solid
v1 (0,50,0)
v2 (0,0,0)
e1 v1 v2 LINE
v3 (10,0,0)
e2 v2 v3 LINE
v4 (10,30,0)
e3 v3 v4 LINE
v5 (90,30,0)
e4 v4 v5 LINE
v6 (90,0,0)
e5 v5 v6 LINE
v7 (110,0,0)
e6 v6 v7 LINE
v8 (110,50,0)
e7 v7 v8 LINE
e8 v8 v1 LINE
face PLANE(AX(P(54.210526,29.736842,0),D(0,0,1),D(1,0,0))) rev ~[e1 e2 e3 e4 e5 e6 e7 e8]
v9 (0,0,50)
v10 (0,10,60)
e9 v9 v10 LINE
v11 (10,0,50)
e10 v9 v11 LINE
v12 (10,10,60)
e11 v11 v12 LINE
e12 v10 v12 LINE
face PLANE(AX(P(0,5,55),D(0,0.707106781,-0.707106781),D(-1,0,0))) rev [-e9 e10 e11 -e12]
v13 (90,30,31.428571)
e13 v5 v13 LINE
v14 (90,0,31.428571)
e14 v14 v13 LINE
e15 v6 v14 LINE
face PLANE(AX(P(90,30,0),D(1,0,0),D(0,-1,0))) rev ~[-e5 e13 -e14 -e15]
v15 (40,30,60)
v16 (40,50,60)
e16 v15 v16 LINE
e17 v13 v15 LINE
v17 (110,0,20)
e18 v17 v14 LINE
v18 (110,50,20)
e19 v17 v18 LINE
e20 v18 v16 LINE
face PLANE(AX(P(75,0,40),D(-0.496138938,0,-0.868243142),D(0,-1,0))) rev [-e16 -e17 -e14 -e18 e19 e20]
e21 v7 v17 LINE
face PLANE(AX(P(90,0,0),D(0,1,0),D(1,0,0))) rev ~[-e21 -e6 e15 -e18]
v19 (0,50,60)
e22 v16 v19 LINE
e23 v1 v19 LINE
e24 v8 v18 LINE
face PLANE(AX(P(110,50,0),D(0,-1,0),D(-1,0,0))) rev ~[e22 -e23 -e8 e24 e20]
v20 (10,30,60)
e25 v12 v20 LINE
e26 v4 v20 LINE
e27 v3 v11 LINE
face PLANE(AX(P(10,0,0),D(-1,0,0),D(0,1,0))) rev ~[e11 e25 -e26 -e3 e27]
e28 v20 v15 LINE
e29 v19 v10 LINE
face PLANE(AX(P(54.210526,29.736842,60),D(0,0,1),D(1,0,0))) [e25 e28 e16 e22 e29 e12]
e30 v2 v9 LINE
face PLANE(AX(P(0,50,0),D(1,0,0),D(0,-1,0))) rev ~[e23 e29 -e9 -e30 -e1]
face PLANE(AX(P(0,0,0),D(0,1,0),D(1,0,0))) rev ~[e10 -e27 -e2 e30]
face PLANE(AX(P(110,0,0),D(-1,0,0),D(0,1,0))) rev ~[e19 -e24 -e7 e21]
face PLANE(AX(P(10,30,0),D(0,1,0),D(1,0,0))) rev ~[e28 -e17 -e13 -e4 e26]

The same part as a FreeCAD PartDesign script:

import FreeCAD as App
import Part
import Sketcher

V = App.Vector


def edges_at(feature, points):
    """Names of the edges that pass closest to the given points."""
    edges = feature.Shape.Edges
    near = lambda p: min(range(len(edges)), key=lambda i: edges[i].distToShape(Part.Vertex(*p))[0])
    return sorted({f"Edge{near(p) + 1}" for p in points})


def add_polygon(sketch, points):
    """Adds a closed chain of lines whose ends are joined by coincident constraints."""
    first, n = sketch.GeometryCount, len(points)
    for a, b in zip(points, points[1:] + points[:1]):
        sketch.addGeometry(Part.LineSegment(App.Vector(*a, 0), App.Vector(*b, 0)), False)
    for i in range(n):
        sketch.addConstraint(Sketcher.Constraint("Coincident", first + i, 2, first + (i + 1) % n, 1))

doc = App.newDocument("Part")
params = doc.addObject("Spreadsheet::Sheet", "Params")
for row, (alias, value) in enumerate([
    ("sketch1_width", "10 mm"),
    ("sketch1_width2", "80 mm"),
    ("sketch1_width3", "20 mm"),
    ("sketch1_height", "50 mm"),
    ("sketch1_height2", "30 mm"),
    ("pad1_length", "60 mm"),
    ("chamfer_size", "10 mm"),
    ("chamfer2_size", "40 mm"),
    ("chamfer2_size2", "70 mm"),
], start=1):
    params.set(f"A{row}", alias)
    params.set(f"B{row}", "=" + value)
    params.setAlias(f"B{row}", alias)

body = doc.addObject("PartDesign::Body", "Body")

# Sketch on XY plane
sketch1 = body.newObject("Sketcher::SketchObject", "Sketch")
sketch1.AttachmentSupport = (doc.getObject("XY_Plane"), [""])
sketch1.MapMode = "FlatFace"
add_polygon(sketch1, [(0, 50), (0, 0), (10, 0), (10, 30), (90, 30), (90, 0), (110, 0), (110, 50)])  # lines 0-7
sketch1.addConstraint(Sketcher.Constraint("Vertical", 0))
sketch1.addConstraint(Sketcher.Constraint("Horizontal", 1))
sketch1.addConstraint(Sketcher.Constraint("Vertical", 2))
sketch1.addConstraint(Sketcher.Constraint("Horizontal", 3))
sketch1.addConstraint(Sketcher.Constraint("Vertical", 4))
sketch1.addConstraint(Sketcher.Constraint("Horizontal", 5))
sketch1.addConstraint(Sketcher.Constraint("Vertical", 6))
sketch1.addConstraint(Sketcher.Constraint("Horizontal", 7))
sketch1.addConstraint(Sketcher.Constraint("Coincident", 0, 2, -1, 1))
sketch1.addConstraint(Sketcher.Constraint("PointOnObject", 4, 2, -1))
sketch1.addConstraint(Sketcher.Constraint("DistanceX", 1, 1, 1, 2, 10.0))
sketch1.addConstraint(Sketcher.Constraint("DistanceX", 3, 1, 3, 2, 80.0))
sketch1.addConstraint(Sketcher.Constraint("DistanceX", 5, 1, 5, 2, 20.0))
sketch1.addConstraint(Sketcher.Constraint("DistanceY", 0, 2, 0, 1, 50.0))
sketch1.addConstraint(Sketcher.Constraint("DistanceY", 2, 1, 2, 2, 30.0))
sketch1.setExpression("Constraints[18]", "Params.sketch1_width")
sketch1.setExpression("Constraints[19]", "Params.sketch1_width2")
sketch1.setExpression("Constraints[20]", "Params.sketch1_width3")
sketch1.setExpression("Constraints[21]", "Params.sketch1_height")
sketch1.setExpression("Constraints[22]", "Params.sketch1_height2")
pad1 = body.newObject("PartDesign::Pad", "Pad")
pad1.Profile = sketch1
pad1.setExpression("Length", "Params.pad1_length")
doc.recompute()

chamfer = body.newObject("PartDesign::Chamfer", "Chamfer")
chamfer.Base = (pad1, edges_at(pad1, [(5, 0, 60)]))
chamfer.setExpression("Size", "Params.chamfer_size")
doc.recompute()

chamfer2 = body.newObject("PartDesign::Chamfer", "Chamfer001")
chamfer2.Base = (chamfer, edges_at(chamfer, [(110, 25, 60)]))
chamfer2.ChamferType = "Two distances"
chamfer2.setExpression("Size", "Params.chamfer2_size")
chamfer2.setExpression("Size2", "Params.chamfer2_size2")
chamfer2.FlipDirection = True

doc.recompute()
